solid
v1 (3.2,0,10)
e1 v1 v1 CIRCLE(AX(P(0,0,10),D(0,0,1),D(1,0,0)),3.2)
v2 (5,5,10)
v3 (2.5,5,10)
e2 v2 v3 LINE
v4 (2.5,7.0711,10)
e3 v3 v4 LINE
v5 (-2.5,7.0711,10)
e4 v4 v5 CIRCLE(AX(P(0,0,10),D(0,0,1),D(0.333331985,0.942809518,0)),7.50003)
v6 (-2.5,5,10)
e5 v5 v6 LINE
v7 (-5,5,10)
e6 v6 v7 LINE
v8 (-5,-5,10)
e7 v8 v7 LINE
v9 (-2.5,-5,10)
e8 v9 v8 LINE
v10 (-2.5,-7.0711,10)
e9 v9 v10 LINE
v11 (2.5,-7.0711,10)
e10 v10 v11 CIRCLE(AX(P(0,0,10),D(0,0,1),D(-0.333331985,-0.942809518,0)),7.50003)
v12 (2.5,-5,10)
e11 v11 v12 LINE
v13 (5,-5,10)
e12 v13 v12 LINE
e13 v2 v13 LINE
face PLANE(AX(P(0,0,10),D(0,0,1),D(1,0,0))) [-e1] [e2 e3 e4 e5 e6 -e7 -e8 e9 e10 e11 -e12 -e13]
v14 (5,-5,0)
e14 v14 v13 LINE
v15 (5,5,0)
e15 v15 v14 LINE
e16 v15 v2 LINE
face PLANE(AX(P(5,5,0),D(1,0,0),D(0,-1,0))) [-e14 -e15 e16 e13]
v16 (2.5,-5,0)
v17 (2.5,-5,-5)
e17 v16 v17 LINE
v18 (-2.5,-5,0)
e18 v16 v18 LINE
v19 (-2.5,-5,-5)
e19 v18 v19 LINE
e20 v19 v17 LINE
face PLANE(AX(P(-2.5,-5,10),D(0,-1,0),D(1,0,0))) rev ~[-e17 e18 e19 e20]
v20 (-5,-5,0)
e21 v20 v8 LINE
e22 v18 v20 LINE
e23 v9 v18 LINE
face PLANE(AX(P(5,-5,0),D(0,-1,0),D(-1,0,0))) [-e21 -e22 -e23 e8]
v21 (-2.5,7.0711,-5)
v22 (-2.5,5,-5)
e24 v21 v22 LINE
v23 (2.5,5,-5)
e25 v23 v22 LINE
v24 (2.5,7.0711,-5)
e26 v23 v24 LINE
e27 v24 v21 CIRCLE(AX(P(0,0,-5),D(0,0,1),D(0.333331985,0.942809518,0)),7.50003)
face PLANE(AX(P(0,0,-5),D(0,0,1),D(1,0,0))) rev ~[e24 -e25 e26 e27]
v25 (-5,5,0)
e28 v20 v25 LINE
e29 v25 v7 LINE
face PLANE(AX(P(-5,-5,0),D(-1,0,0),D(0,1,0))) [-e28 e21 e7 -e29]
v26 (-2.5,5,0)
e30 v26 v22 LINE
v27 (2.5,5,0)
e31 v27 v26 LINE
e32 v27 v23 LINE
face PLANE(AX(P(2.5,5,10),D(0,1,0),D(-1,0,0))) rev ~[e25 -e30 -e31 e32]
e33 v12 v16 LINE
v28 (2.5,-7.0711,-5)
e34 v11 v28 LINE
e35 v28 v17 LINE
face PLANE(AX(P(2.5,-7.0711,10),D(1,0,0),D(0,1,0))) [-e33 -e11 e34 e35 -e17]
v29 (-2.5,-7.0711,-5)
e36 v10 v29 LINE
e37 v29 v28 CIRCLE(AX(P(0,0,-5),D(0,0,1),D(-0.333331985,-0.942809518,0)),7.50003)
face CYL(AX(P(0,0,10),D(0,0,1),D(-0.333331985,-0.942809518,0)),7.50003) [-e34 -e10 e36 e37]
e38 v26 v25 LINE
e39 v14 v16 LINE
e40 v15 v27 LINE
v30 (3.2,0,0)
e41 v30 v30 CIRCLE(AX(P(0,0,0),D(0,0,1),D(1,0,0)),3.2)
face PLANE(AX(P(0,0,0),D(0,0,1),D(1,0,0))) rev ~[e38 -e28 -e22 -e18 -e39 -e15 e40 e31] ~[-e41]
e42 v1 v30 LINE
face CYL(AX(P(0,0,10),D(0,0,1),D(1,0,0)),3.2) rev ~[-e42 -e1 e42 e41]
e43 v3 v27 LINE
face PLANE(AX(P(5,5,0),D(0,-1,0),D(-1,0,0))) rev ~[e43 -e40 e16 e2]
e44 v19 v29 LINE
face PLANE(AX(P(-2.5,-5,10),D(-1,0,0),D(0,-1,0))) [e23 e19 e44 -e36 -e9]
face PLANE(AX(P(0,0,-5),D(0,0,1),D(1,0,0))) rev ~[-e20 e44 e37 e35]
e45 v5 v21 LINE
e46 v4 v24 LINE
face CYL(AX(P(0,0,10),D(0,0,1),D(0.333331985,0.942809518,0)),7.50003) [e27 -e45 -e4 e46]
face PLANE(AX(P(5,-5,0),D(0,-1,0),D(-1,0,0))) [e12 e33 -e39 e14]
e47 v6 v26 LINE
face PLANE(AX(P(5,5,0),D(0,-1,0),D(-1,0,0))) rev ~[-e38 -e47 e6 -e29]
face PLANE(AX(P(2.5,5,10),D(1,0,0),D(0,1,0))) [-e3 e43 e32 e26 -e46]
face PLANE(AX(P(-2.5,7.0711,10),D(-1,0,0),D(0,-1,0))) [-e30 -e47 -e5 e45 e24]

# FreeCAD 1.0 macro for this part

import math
import FreeCAD as App
import Part
import Sketcher
from FreeCAD import Vector

doc = App.newDocument("Part")
params = doc.addObject("Spreadsheet::Sheet", "Params")
for row, (alias, value) in enumerate([
    ("sketch1_width", "10 mm"),
    ("pad1_length", "10 mm"),
    ("sketch2_diameter", "6.4 mm"),
    ("sketch3_radius", "7.5 mm"),
    ("sketch3_width", "5 mm"),
    ("pad2_length", "15 mm"),
], start=1):
    params.set(f"A{row}", alias)
    params.set(f"B{row}", "=" + value)
    params.setAlias(f"B{row}", alias)

body = doc.addObject("PartDesign::Body", "Body")

# Sketch on XY plane
sketch1 = body.newObject("Sketcher::SketchObject", "Sketch")
sketch1.AttachmentSupport = (doc.getObject("XY_Plane"), [""])
sketch1.MapMode = "FlatFace"
sketch1.addGeometry([
    Part.LineSegment(Vector(5, -5, 0), Vector(5, 5, 0)),
    Part.LineSegment(Vector(5, 5, 0), Vector(-5, 5, 0)),
    Part.LineSegment(Vector(-5, 5, 0), Vector(-5, -5, 0)),
    Part.LineSegment(Vector(-5, -5, 0), Vector(5, -5, 0)),
], False)
sketch1.addConstraint([
    Sketcher.Constraint("Coincident", 0, 2, 1, 1),
    Sketcher.Constraint("Coincident", 1, 2, 2, 1),
    Sketcher.Constraint("Coincident", 2, 2, 3, 1),
    Sketcher.Constraint("Coincident", 3, 2, 0, 1),
    Sketcher.Constraint("Vertical", 0),
    Sketcher.Constraint("Horizontal", 1),
    Sketcher.Constraint("Vertical", 2),
    Sketcher.Constraint("Horizontal", 3),
    Sketcher.Constraint("Symmetric", 0, 2, 2, 2, -1, 1),
    Sketcher.Constraint("Equal", 3, 0),
    Sketcher.Constraint("DistanceX", 1, 2, 1, 1, 10.0),
])
sketch1.setExpression("Constraints[10]", "Params.sketch1_width")
pad1 = body.newObject("PartDesign::Pad", "Pad")
pad1.Profile = sketch1
pad1.setExpression("Length", "Params.pad1_length")

# Sketch on XY plane
sketch2 = body.newObject("Sketcher::SketchObject", "Sketch001")
sketch2.AttachmentSupport = (doc.getObject("XY_Plane"), [""])
sketch2.MapMode = "FlatFace"
sketch2.AttachmentOffset = App.Placement(Vector(0, 0, 10), App.Rotation())
sketch2.addGeometry(Part.Circle(Vector(0, 0, 0), Vector(0, 0, 1), 3.2), False)
sketch2.addConstraint([
    Sketcher.Constraint("Coincident", 0, 3, -1, 1),
    Sketcher.Constraint("Diameter", 0, 6.4),
])
sketch2.setExpression("Constraints[1]", "Params.sketch2_diameter")
pocket1 = body.newObject("PartDesign::Pocket", "Pocket")
pocket1.Profile = sketch2
pocket1.Type = "UpToFirst"

# Sketch on XY plane
sketch3 = body.newObject("Sketcher::SketchObject", "Sketch002")
sketch3.AttachmentSupport = (doc.getObject("XY_Plane"), [""])
sketch3.MapMode = "FlatFace"
sketch3.AttachmentOffset = App.Placement(Vector(0, 0, 10), App.Rotation())
sketch3.addGeometry([
    Part.LineSegment(Vector(-2.5, -5, 0), Vector(-2.5, -7.1, 0)),  # 0
    Part.ArcOfCircle(Part.Circle(Vector(0, 0, 0), Vector(0, 0, 1), 7.5), math.radians(-109), math.radians(-71)),  # 1
    Part.LineSegment(Vector(2.5, -7.1, 0), Vector(2.5, -5, 0)),  # 2
    Part.LineSegment(Vector(2.5, -5, 0), Vector(-2.5, -5, 0)),  # 3
    Part.LineSegment(Vector(2.5, 5, 0), Vector(2.5, 7.1, 0)),  # 4
    Part.ArcOfCircle(Part.Circle(Vector(0, 0, 0), Vector(0, 0, 1), 7.5), math.radians(71), math.radians(109)),  # 5
    Part.LineSegment(Vector(-2.5, 7.1, 0), Vector(-2.5, 5, 0)),  # 6
    Part.LineSegment(Vector(-2.5, 5, 0), Vector(2.5, 5, 0)),  # 7
], False)
sketch3.addConstraint([
    Sketcher.Constraint("Coincident", 0, 2, 1, 1),
    Sketcher.Constraint("Coincident", 1, 2, 2, 1),
    Sketcher.Constraint("Coincident", 2, 2, 3, 1),
    Sketcher.Constraint("Coincident", 3, 2, 0, 1),
    Sketcher.Constraint("Coincident", 4, 2, 5, 1),
    Sketcher.Constraint("Coincident", 5, 2, 6, 1),
    Sketcher.Constraint("Coincident", 6, 2, 7, 1),
    Sketcher.Constraint("Coincident", 7, 2, 4, 1),
    Sketcher.Constraint("Vertical", 0),
    Sketcher.Constraint("Vertical", 2),
    Sketcher.Constraint("Horizontal", 3),
    Sketcher.Constraint("Vertical", 4),
    Sketcher.Constraint("Vertical", 6),
    Sketcher.Constraint("Horizontal", 7),
    Sketcher.Constraint("Coincident", 1, 3, -1, 1),
    Sketcher.Constraint("Coincident", 5, 3, -1, 1),
    Sketcher.Constraint("Equal", 1, 5),
    Sketcher.Constraint("Symmetric", 2, 2, 6, 2, -1, 1),
    Sketcher.Constraint("Horizontal", 0, 2, 1, 2),
    Sketcher.Constraint("Horizontal", 4, 2, 5, 2),
    Sketcher.Constraint("Radius", 1, 7.5),
    Sketcher.Constraint("DistanceX", 3, 2, 3, 1, 5.0),
    Sketcher.Constraint("DistanceY", 2, 2, -1, 1, 5.0),
])
sketch3.setExpression("Constraints[20]", "Params.sketch3_radius")
sketch3.setExpression("Constraints[21]", "Params.sketch3_width")
pad2 = body.newObject("PartDesign::Pad", "Pad001")
pad2.Profile = sketch3
pad2.setExpression("Length", "Params.pad2_length")
pad2.Reversed = True

doc.recompute()
